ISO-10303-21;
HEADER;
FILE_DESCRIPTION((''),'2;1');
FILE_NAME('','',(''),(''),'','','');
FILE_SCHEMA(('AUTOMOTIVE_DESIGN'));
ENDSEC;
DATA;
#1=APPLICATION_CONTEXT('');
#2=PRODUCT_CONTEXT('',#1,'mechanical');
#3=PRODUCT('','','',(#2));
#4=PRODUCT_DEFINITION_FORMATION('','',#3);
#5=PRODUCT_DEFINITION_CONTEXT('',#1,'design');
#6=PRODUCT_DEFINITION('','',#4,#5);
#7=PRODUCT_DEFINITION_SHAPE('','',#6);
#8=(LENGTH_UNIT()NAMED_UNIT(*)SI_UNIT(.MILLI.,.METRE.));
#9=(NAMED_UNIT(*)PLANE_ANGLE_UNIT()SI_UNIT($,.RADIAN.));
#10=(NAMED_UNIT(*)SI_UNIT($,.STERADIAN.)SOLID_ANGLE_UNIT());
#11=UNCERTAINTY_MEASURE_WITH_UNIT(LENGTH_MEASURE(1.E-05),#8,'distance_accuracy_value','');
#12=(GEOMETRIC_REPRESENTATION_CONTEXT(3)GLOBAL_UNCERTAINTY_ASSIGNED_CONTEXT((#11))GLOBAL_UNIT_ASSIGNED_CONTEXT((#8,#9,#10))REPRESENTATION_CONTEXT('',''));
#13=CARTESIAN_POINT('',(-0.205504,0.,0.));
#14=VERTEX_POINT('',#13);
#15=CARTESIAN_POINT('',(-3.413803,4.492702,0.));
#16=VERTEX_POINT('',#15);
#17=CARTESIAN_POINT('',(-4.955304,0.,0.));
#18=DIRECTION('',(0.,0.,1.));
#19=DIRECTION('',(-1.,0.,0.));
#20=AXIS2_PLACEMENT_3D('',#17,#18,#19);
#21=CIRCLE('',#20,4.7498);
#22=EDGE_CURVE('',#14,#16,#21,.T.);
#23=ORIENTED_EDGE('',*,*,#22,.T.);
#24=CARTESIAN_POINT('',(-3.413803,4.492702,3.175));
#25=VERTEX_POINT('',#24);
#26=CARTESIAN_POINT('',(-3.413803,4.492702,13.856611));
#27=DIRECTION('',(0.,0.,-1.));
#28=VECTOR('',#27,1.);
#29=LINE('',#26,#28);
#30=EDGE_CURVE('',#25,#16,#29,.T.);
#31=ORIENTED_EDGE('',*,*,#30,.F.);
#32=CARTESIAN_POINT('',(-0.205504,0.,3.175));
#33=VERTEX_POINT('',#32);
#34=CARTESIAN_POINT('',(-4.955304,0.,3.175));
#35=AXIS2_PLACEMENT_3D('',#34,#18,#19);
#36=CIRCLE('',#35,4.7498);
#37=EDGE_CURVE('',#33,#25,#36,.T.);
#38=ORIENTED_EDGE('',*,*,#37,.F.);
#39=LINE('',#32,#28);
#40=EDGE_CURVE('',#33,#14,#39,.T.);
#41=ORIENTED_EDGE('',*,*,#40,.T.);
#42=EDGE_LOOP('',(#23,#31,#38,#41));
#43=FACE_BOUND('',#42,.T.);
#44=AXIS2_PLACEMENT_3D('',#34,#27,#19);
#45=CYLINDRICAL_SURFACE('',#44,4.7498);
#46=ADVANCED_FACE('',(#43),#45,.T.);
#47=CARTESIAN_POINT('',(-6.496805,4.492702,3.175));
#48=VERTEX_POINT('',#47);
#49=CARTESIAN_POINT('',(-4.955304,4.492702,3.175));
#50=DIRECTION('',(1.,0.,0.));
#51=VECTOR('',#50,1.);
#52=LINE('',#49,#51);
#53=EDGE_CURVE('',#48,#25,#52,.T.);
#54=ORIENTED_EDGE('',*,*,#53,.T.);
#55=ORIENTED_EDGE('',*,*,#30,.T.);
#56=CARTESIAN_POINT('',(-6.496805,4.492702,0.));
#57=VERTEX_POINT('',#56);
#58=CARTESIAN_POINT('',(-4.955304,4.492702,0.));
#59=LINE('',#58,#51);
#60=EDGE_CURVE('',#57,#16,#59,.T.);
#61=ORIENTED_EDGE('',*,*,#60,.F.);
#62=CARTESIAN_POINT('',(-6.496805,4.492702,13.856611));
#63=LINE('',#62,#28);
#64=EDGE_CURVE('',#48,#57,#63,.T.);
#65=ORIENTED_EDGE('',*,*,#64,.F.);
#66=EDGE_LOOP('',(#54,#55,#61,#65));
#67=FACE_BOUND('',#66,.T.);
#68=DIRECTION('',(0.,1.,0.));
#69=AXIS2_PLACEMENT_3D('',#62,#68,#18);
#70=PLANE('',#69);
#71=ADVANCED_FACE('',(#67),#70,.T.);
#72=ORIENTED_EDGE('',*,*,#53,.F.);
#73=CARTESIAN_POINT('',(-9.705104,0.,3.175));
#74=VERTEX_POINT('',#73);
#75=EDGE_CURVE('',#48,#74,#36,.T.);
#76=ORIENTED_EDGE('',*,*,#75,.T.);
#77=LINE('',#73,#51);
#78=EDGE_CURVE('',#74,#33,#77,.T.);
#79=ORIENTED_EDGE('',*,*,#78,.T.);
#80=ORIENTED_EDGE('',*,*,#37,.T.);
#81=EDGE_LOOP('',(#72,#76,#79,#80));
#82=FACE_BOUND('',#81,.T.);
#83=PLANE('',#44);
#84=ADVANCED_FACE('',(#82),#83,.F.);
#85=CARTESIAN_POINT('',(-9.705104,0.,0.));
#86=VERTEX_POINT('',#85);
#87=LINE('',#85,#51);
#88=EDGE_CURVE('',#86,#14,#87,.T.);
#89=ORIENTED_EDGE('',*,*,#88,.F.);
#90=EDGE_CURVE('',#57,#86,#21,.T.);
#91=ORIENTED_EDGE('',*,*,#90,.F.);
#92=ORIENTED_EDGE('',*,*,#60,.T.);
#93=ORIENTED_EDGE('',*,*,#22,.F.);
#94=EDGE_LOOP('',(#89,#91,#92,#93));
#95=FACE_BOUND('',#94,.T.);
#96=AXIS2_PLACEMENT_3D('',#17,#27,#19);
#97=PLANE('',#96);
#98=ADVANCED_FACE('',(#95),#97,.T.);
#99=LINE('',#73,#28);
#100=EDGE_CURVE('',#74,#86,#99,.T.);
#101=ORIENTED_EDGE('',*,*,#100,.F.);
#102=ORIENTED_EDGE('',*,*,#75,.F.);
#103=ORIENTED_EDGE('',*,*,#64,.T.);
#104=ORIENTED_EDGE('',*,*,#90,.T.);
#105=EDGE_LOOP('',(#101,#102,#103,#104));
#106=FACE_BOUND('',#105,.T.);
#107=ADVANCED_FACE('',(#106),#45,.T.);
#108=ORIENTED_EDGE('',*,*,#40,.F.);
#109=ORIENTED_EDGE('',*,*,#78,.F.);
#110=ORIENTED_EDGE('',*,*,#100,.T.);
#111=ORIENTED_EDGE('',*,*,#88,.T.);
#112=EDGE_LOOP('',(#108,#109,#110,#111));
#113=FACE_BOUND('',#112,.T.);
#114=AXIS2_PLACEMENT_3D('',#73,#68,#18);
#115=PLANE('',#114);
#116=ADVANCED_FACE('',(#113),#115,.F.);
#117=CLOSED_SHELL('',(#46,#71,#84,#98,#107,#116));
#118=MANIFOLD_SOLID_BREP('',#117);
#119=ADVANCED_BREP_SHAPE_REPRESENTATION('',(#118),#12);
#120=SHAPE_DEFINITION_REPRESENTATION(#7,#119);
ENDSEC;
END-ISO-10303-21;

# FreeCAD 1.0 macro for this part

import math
import FreeCAD as App
import Part
import Sketcher
from FreeCAD import Vector
Q = App.Units.Quantity


def add_polygon(sketch, points):
    """Adds a closed chain of lines whose ends are joined by coincident constraints."""
    first, n = sketch.GeometryCount, len(points)
    for a, b in zip(points, points[1:] + points[:1]):
        sketch.addGeometry(Part.LineSegment(App.Vector(*a, 0), App.Vector(*b, 0)), False)
    for i in range(n):
        sketch.addConstraint(Sketcher.Constraint("Coincident", first + i, 2, first + (i + 1) % n, 1))

doc = App.newDocument("Part")
body = doc.addObject("PartDesign::Body", "Body")

# Sketch on XY plane
sketch1 = doc.addObject("Sketcher::SketchObject", "Sketch")
body.addObject(sketch1)
sketch1.AttachmentSupport = (doc.XY_Plane, [""])
sketch1.MapMode = "FlatFace"
sketch1.addGeometry([
    Part.LineSegment(Vector(-9.7, 0, 0), Vector(-0.2, 0, 0)),
    Part.ArcOfCircle(Part.Circle(Vector(-5, 0, 0), Vector(0, 0, 1), 4.7), math.radians(0), math.radians(180)),
], False)
sketch1.addConstraint([
    Sketcher.Constraint("Coincident", 0, 1, 1, 2),
    Sketcher.Constraint("Coincident", 1, 1, 0, 2),
    Sketcher.Constraint("Horizontal", 0),
    Sketcher.Constraint("PointOnObject", 1, 3, -1),
    Sketcher.Constraint("PointOnObject", 0, 1, -1),
    Sketcher.Constraint("Radius", 1, Q("0.187 in")),
    Sketcher.Constraint("DistanceX", 1, 3, -1, 1, 4.955304),
])
pad1 = doc.addObject("PartDesign::Pad", "Pad")
body.addObject(pad1)
pad1.Profile = sketch1
pad1.Length = Q("0.125 in")

# Sketch on XY plane
sketch2 = doc.addObject("Sketcher::SketchObject", "Sketch001")
body.addObject(sketch2)
sketch2.AttachmentSupport = (doc.XY_Plane, [""])
sketch2.MapMode = "FlatFace"
add_polygon(sketch2, [(-32, 4), (22, 4), (22, 55), (-32, 55)])  # lines 0-3
sketch2.addConstraint([
    Sketcher.Constraint("Horizontal", 0),
    Sketcher.Constraint("Vertical", 1),
    Sketcher.Constraint("Horizontal", 2),
    Sketcher.Constraint("Vertical", 3),
    Sketcher.Constraint("DistanceX", 0, 1, 0, 2, 54.006091),
    Sketcher.Constraint("DistanceY", 1, 1, 1, 2, 50.92309),
    Sketcher.Constraint("DistanceX", -1, 1, 0, 2, 22.047742),
    Sketcher.Constraint("DistanceY", -1, 1, 0, 2, 4.492702),
])
pocket1 = doc.addObject("PartDesign::Pocket", "Pocket")
body.addObject(pocket1)
pocket1.Profile = sketch2
pocket1.Type = "ThroughAll"
pocket1.Midplane = True

doc.recompute()
